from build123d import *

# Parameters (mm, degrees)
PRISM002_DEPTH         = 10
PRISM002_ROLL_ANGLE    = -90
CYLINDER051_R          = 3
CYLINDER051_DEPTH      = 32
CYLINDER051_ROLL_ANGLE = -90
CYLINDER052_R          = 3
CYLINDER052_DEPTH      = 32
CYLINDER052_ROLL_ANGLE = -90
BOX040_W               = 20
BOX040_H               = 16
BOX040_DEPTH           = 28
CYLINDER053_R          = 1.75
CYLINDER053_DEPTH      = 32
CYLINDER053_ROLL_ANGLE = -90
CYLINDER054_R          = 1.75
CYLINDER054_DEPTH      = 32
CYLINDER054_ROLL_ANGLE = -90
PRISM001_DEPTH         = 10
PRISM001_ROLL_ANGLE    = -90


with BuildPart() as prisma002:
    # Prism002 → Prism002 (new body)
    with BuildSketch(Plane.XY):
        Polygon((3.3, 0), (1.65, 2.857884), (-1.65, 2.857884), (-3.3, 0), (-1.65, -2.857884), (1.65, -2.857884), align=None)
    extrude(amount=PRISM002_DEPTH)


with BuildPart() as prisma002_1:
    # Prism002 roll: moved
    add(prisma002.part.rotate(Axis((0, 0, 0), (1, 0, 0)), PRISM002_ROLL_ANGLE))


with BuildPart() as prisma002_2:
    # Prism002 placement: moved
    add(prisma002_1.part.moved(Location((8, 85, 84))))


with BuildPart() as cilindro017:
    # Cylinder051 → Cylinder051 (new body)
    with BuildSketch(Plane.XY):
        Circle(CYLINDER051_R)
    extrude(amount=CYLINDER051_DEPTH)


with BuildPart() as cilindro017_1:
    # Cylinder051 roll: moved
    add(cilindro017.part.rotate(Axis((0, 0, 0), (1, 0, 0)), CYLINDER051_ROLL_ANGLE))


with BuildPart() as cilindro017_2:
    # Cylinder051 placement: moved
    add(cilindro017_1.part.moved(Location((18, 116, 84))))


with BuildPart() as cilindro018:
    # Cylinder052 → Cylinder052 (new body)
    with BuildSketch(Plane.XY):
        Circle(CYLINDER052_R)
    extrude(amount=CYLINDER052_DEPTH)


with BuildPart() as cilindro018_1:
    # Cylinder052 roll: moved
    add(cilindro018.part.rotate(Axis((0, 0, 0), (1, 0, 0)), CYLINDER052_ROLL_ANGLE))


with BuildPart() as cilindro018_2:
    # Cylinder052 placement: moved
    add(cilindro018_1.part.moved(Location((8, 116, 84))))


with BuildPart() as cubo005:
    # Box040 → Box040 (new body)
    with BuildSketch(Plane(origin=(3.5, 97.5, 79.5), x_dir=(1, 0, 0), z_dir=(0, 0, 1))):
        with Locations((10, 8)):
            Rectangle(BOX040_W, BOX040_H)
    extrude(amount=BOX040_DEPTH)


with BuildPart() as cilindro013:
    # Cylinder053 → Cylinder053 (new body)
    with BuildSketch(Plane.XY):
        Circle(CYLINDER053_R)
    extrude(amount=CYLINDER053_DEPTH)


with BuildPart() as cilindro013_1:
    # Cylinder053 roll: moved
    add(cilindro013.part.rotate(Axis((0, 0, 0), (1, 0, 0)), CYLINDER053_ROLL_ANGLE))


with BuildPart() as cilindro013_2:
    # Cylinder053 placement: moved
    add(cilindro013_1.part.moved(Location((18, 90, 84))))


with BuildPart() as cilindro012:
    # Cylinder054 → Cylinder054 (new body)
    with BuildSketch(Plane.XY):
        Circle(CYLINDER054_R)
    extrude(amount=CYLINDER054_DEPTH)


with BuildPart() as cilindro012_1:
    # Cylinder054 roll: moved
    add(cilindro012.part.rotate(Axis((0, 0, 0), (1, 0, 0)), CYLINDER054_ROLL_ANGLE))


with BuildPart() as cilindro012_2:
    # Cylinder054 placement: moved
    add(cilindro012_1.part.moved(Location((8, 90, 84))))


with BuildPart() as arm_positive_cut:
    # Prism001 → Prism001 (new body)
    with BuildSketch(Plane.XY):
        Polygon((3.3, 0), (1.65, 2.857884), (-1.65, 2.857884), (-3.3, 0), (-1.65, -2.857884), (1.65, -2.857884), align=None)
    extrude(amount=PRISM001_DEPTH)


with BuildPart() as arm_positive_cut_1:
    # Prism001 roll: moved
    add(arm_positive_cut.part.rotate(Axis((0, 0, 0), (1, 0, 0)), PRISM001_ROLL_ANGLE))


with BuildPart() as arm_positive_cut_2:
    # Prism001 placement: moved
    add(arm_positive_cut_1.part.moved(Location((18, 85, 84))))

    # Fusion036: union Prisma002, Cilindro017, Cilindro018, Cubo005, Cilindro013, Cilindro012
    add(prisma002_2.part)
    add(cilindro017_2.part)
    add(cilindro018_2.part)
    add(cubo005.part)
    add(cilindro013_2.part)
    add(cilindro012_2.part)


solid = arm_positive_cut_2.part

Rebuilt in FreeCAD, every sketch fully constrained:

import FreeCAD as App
import Part
import Sketcher
from FreeCAD import Vector
Q = App.Units.Quantity

doc = App.newDocument("Part")
body = doc.addObject("PartDesign::Body", "Body")

sketch1 = body.newObject("Sketcher::SketchObject", "Sketch")
sketch1.AttachmentSupport = (doc.getObject("XY_Plane"), [""])
sketch1.MapMode = "FlatFace"
sketch1.addGeometry([
    Part.LineSegment(Vector(3.3, 0, 0), Vector(1.6, 2.9, 0)),
    Part.LineSegment(Vector(1.6, 2.9, 0), Vector(-1.6, 2.9, 0)),
    Part.LineSegment(Vector(-1.6, 2.9, 0), Vector(-3.3, 0, 0)),
    Part.LineSegment(Vector(-3.3, 0, 0), Vector(-1.6, -2.9, 0)),
    Part.LineSegment(Vector(-1.6, -2.9, 0), Vector(1.6, -2.9, 0)),
    Part.LineSegment(Vector(1.6, -2.9, 0), Vector(3.3, 0, 0)),
], False)
sketch1.addConstraint([
    Sketcher.Constraint("Coincident", 0, 2, 1, 1),
    Sketcher.Constraint("Coincident", 1, 2, 2, 1),
    Sketcher.Constraint("Coincident", 2, 2, 3, 1),
    Sketcher.Constraint("Coincident", 3, 2, 4, 1),
    Sketcher.Constraint("Coincident", 4, 2, 5, 1),
    Sketcher.Constraint("Coincident", 5, 2, 0, 1),
    Sketcher.Constraint("Horizontal", 1),
    Sketcher.Constraint("Horizontal", 4),
    Sketcher.Constraint("Symmetric", 0, 2, 3, 2, -1, 1),
    Sketcher.Constraint("Symmetric", 2, 2, 5, 2, -1, 1),
    Sketcher.Constraint("PointOnObject", 2, 2, -1),
    Sketcher.Constraint("Parallel", 2, 5),
    Sketcher.Constraint("Vertical", 1, 2, 3, 2),
    Sketcher.Constraint("Angle", 0, Q("119.999999 deg")),
    Sketcher.Constraint("DistanceX", 1, 2, 1, 1, Q("3.3 mm")),
    Sketcher.Constraint("Distance", 0, Q("3.3 mm")),
])
pad1 = body.newObject("PartDesign::Pad", "Pad")
pad1.Profile = sketch1
pad1.Length = 10
body2 = doc.addObject("PartDesign::Body", "Body001")
doc.recompute()

body.Placement = App.Placement(Vector(0, 0, 0), App.Rotation(Vector(1, 0, 0), 270))
boolean = body2.newObject("PartDesign::Boolean", "Boolean")
boolean.Type = "Fuse"
boolean.addObjects([body])
body3 = doc.addObject("PartDesign::Body", "Body002")
doc.recompute()

body2.Placement = App.Placement(Vector(8, 85, 84), App.Rotation(Vector(0, 0, 1), 0))
boolean2 = body3.newObject("PartDesign::Boolean", "Boolean001")
boolean2.Type = "Fuse"
boolean2.addObjects([body2])
body4 = doc.addObject("PartDesign::Body", "Body003")

sketch2 = body4.newObject("Sketcher::SketchObject", "Sketch001")
sketch2.AttachmentSupport = (doc.getObject("XY_Plane003"), [""])
sketch2.MapMode = "FlatFace"
sketch2.addGeometry(Part.Circle(Vector(0, 0, 0), Vector(0, 0, 1), 3), False)
sketch2.addConstraint([
    Sketcher.Constraint("Coincident", 0, 3, -1, 1),
    Sketcher.Constraint("Diameter", 0, Q("6 mm")),
])
pad2 = body4.newObject("PartDesign::Pad", "Pad001")
pad2.Profile = sketch2
pad2.Length = 32
body5 = doc.addObject("PartDesign::Body", "Body004")
doc.recompute()

body4.Placement = App.Placement(Vector(0, 0, 0), App.Rotation(Vector(1, 0, 0), 270))
boolean3 = body5.newObject("PartDesign::Boolean", "Boolean002")
boolean3.Type = "Fuse"
boolean3.addObjects([body4])
body6 = doc.addObject("PartDesign::Body", "Body005")
doc.recompute()

body5.Placement = App.Placement(Vector(18, 116, 84), App.Rotation(Vector(0, 0, 1), 0))
boolean4 = body6.newObject("PartDesign::Boolean", "Boolean003")
boolean4.Type = "Fuse"
boolean4.addObjects([body5])
body7 = doc.addObject("PartDesign::Body", "Body006")

sketch3 = body7.newObject("Sketcher::SketchObject", "Sketch002")
sketch3.AttachmentSupport = (doc.getObject("XY_Plane006"), [""])
sketch3.MapMode = "FlatFace"
sketch3.addGeometry(Part.Circle(Vector(0, 0, 0), Vector(0, 0, 1), 3), False)
sketch3.addConstraint([
    Sketcher.Constraint("Coincident", 0, 3, -1, 1),
    Sketcher.Constraint("Diameter", 0, Q("6 mm")),
])
pad3 = body7.newObject("PartDesign::Pad", "Pad002")
pad3.Profile = sketch3
pad3.Length = 32
body8 = doc.addObject("PartDesign::Body", "Body007")
doc.recompute()

body7.Placement = App.Placement(Vector(0, 0, 0), App.Rotation(Vector(1, 0, 0), 270))
boolean5 = body8.newObject("PartDesign::Boolean", "Boolean004")
boolean5.Type = "Fuse"
boolean5.addObjects([body7])
body9 = doc.addObject("PartDesign::Body", "Body008")
doc.recompute()

body8.Placement = App.Placement(Vector(8, 116, 84), App.Rotation(Vector(0, 0, 1), 0))
boolean6 = body9.newObject("PartDesign::Boolean", "Boolean005")
boolean6.Type = "Fuse"
boolean6.addObjects([body8])
body10 = doc.addObject("PartDesign::Body", "Body009")

sketch4 = body10.newObject("Sketcher::SketchObject", "Sketch003")
sketch4.AttachmentSupport = (doc.getObject("XY_Plane009"), [""])
sketch4.MapMode = "FlatFace"
sketch4.AttachmentOffset = App.Placement(Vector(0, 0, 79.5), App.Rotation())
sketch4.addGeometry([
    Part.LineSegment(Vector(4, 114, 0), Vector(4, 98, 0)),
    Part.LineSegment(Vector(4, 98, 0), Vector(24, 98, 0)),
    Part.LineSegment(Vector(24, 98, 0), Vector(24, 114, 0)),
    Part.LineSegment(Vector(24, 114, 0), Vector(4, 114, 0)),
], False)
sketch4.addConstraint([
    Sketcher.Constraint("Coincident", 0, 2, 1, 1),
    Sketcher.Constraint("Coincident", 1, 2, 2, 1),
    Sketcher.Constraint("Coincident", 2, 2, 3, 1),
    Sketcher.Constraint("Coincident", 3, 2, 0, 1),
    Sketcher.Constraint("Vertical", 0),
    Sketcher.Constraint("Horizontal", 1),
    Sketcher.Constraint("Vertical", 2),
    Sketcher.Constraint("Horizontal", 3),
    Sketcher.Constraint("DistanceX", 1, 1, 1, 2, Q("20 mm")),
    Sketcher.Constraint("DistanceY", 0, 2, 0, 1, Q("16 mm")),
    Sketcher.Constraint("DistanceX", -1, 1, 0, 2, Q("3.5 mm")),
    Sketcher.Constraint("DistanceY", -1, 1, 0, 2, Q("97.5 mm")),
])
pad4 = body10.newObject("PartDesign::Pad", "Pad003")
pad4.Profile = sketch4
pad4.Length = 28
body11 = doc.addObject("PartDesign::Body", "Body010")

sketch5 = body11.newObject("Sketcher::SketchObject", "Sketch004")
sketch5.AttachmentSupport = (doc.getObject("XY_Plane010"), [""])
sketch5.MapMode = "FlatFace"
sketch5.addGeometry(Part.Circle(Vector(0, 0, 0), Vector(0, 0, 1), 1.8), False)
sketch5.addConstraint([
    Sketcher.Constraint("Coincident", 0, 3, -1, 1),
    Sketcher.Constraint("Diameter", 0, Q("3.5 mm")),
])
pad5 = body11.newObject("PartDesign::Pad", "Pad004")
pad5.Profile = sketch5
pad5.Length = 32
body12 = doc.addObject("PartDesign::Body", "Body011")
doc.recompute()

body11.Placement = App.Placement(Vector(0, 0, 0), App.Rotation(Vector(1, 0, 0), 270))
boolean7 = body12.newObject("PartDesign::Boolean", "Boolean006")
boolean7.Type = "Fuse"
boolean7.addObjects([body11])
body13 = doc.addObject("PartDesign::Body", "Body012")
doc.recompute()

body12.Placement = App.Placement(Vector(18, 90, 84), App.Rotation(Vector(0, 0, 1), 0))
boolean8 = body13.newObject("PartDesign::Boolean", "Boolean007")
boolean8.Type = "Fuse"
boolean8.addObjects([body12])
body14 = doc.addObject("PartDesign::Body", "Body013")

sketch6 = body14.newObject("Sketcher::SketchObject", "Sketch005")
sketch6.AttachmentSupport = (doc.getObject("XY_Plane013"), [""])
sketch6.MapMode = "FlatFace"
sketch6.addGeometry(Part.Circle(Vector(0, 0, 0), Vector(0, 0, 1), 1.8), False)
sketch6.addConstraint([
    Sketcher.Constraint("Coincident", 0, 3, -1, 1),
    Sketcher.Constraint("Diameter", 0, Q("3.5 mm")),
])
pad6 = body14.newObject("PartDesign::Pad", "Pad005")
pad6.Profile = sketch6
pad6.Length = 32
body15 = doc.addObject("PartDesign::Body", "Body014")
doc.recompute()

body14.Placement = App.Placement(Vector(0, 0, 0), App.Rotation(Vector(1, 0, 0), 270))
boolean9 = body15.newObject("PartDesign::Boolean", "Boolean008")
boolean9.Type = "Fuse"
boolean9.addObjects([body14])
body16 = doc.addObject("PartDesign::Body", "Body015")
doc.recompute()

body15.Placement = App.Placement(Vector(8, 90, 84), App.Rotation(Vector(0, 0, 1), 0))
boolean10 = body16.newObject("PartDesign::Boolean", "Boolean009")
boolean10.Type = "Fuse"
boolean10.addObjects([body15])
body17 = doc.addObject("PartDesign::Body", "Body016")

sketch7 = body17.newObject("Sketcher::SketchObject", "Sketch006")
sketch7.AttachmentSupport = (doc.getObject("XY_Plane016"), [""])
sketch7.MapMode = "FlatFace"
sketch7.addGeometry([
    Part.LineSegment(Vector(3.3, 0, 0), Vector(1.6, 2.9, 0)),
    Part.LineSegment(Vector(1.6, 2.9, 0), Vector(-1.6, 2.9, 0)),
    Part.LineSegment(Vector(-1.6, 2.9, 0), Vector(-3.3, 0, 0)),
    Part.LineSegment(Vector(-3.3, 0, 0), Vector(-1.6, -2.9, 0)),
    Part.LineSegment(Vector(-1.6, -2.9, 0), Vector(1.6, -2.9, 0)),
    Part.LineSegment(Vector(1.6, -2.9, 0), Vector(3.3, 0, 0)),
], False)
sketch7.addConstraint([
    Sketcher.Constraint("Coincident", 0, 2, 1, 1),
    Sketcher.Constraint("Coincident", 1, 2, 2, 1),
    Sketcher.Constraint("Coincident", 2, 2, 3, 1),
    Sketcher.Constraint("Coincident", 3, 2, 4, 1),
    Sketcher.Constraint("Coincident", 4, 2, 5, 1),
    Sketcher.Constraint("Coincident", 5, 2, 0, 1),
    Sketcher.Constraint("Horizontal", 1),
    Sketcher.Constraint("Horizontal", 4),
    Sketcher.Constraint("Symmetric", 0, 2, 3, 2, -1, 1),
    Sketcher.Constraint("Symmetric", 2, 2, 5, 2, -1, 1),
    Sketcher.Constraint("PointOnObject", 2, 2, -1),
    Sketcher.Constraint("Parallel", 2, 5),
    Sketcher.Constraint("Vertical", 1, 2, 3, 2),
    Sketcher.Constraint("Angle", 0, Q("119.999999 deg")),
    Sketcher.Constraint("DistanceX", 1, 2, 1, 1, Q("3.3 mm")),
    Sketcher.Constraint("Distance", 0, Q("3.3 mm")),
])
pad7 = body17.newObject("PartDesign::Pad", "Pad006")
pad7.Profile = sketch7
pad7.Length = 10
body18 = doc.addObject("PartDesign::Body", "Body017")
doc.recompute()

body17.Placement = App.Placement(Vector(0, 0, 0), App.Rotation(Vector(1, 0, 0), 270))
boolean11 = body18.newObject("PartDesign::Boolean", "Boolean010")
boolean11.Type = "Fuse"
boolean11.addObjects([body17])
body19 = doc.addObject("PartDesign::Body", "Body018")
body19.AllowCompound = True
doc.recompute()

body18.Placement = App.Placement(Vector(18, 85, 84), App.Rotation(Vector(0, 0, 1), 0))
boolean12 = body19.newObject("PartDesign::Boolean", "Boolean011")
boolean12.Type = "Fuse"
boolean12.addObjects([body18])
doc.recompute()

boolean13 = body19.newObject("PartDesign::Boolean", "Boolean012")
boolean13.Type = "Fuse"
boolean13.addObjects([body3])
doc.recompute()

boolean14 = body19.newObject("PartDesign::Boolean", "Boolean013")
boolean14.Type = "Fuse"
boolean14.addObjects([body6])
doc.recompute()

boolean15 = body19.newObject("PartDesign::Boolean", "Boolean014")
boolean15.Type = "Fuse"
boolean15.addObjects([body9])
doc.recompute()

boolean16 = body19.newObject("PartDesign::Boolean", "Boolean015")
boolean16.Type = "Fuse"
boolean16.addObjects([body10])
doc.recompute()

boolean17 = body19.newObject("PartDesign::Boolean", "Boolean016")
boolean17.Type = "Fuse"
boolean17.addObjects([body13])
doc.recompute()

boolean18 = body19.newObject("PartDesign::Boolean", "Boolean017")
boolean18.Type = "Fuse"
boolean18.addObjects([body16])

doc.recompute()
